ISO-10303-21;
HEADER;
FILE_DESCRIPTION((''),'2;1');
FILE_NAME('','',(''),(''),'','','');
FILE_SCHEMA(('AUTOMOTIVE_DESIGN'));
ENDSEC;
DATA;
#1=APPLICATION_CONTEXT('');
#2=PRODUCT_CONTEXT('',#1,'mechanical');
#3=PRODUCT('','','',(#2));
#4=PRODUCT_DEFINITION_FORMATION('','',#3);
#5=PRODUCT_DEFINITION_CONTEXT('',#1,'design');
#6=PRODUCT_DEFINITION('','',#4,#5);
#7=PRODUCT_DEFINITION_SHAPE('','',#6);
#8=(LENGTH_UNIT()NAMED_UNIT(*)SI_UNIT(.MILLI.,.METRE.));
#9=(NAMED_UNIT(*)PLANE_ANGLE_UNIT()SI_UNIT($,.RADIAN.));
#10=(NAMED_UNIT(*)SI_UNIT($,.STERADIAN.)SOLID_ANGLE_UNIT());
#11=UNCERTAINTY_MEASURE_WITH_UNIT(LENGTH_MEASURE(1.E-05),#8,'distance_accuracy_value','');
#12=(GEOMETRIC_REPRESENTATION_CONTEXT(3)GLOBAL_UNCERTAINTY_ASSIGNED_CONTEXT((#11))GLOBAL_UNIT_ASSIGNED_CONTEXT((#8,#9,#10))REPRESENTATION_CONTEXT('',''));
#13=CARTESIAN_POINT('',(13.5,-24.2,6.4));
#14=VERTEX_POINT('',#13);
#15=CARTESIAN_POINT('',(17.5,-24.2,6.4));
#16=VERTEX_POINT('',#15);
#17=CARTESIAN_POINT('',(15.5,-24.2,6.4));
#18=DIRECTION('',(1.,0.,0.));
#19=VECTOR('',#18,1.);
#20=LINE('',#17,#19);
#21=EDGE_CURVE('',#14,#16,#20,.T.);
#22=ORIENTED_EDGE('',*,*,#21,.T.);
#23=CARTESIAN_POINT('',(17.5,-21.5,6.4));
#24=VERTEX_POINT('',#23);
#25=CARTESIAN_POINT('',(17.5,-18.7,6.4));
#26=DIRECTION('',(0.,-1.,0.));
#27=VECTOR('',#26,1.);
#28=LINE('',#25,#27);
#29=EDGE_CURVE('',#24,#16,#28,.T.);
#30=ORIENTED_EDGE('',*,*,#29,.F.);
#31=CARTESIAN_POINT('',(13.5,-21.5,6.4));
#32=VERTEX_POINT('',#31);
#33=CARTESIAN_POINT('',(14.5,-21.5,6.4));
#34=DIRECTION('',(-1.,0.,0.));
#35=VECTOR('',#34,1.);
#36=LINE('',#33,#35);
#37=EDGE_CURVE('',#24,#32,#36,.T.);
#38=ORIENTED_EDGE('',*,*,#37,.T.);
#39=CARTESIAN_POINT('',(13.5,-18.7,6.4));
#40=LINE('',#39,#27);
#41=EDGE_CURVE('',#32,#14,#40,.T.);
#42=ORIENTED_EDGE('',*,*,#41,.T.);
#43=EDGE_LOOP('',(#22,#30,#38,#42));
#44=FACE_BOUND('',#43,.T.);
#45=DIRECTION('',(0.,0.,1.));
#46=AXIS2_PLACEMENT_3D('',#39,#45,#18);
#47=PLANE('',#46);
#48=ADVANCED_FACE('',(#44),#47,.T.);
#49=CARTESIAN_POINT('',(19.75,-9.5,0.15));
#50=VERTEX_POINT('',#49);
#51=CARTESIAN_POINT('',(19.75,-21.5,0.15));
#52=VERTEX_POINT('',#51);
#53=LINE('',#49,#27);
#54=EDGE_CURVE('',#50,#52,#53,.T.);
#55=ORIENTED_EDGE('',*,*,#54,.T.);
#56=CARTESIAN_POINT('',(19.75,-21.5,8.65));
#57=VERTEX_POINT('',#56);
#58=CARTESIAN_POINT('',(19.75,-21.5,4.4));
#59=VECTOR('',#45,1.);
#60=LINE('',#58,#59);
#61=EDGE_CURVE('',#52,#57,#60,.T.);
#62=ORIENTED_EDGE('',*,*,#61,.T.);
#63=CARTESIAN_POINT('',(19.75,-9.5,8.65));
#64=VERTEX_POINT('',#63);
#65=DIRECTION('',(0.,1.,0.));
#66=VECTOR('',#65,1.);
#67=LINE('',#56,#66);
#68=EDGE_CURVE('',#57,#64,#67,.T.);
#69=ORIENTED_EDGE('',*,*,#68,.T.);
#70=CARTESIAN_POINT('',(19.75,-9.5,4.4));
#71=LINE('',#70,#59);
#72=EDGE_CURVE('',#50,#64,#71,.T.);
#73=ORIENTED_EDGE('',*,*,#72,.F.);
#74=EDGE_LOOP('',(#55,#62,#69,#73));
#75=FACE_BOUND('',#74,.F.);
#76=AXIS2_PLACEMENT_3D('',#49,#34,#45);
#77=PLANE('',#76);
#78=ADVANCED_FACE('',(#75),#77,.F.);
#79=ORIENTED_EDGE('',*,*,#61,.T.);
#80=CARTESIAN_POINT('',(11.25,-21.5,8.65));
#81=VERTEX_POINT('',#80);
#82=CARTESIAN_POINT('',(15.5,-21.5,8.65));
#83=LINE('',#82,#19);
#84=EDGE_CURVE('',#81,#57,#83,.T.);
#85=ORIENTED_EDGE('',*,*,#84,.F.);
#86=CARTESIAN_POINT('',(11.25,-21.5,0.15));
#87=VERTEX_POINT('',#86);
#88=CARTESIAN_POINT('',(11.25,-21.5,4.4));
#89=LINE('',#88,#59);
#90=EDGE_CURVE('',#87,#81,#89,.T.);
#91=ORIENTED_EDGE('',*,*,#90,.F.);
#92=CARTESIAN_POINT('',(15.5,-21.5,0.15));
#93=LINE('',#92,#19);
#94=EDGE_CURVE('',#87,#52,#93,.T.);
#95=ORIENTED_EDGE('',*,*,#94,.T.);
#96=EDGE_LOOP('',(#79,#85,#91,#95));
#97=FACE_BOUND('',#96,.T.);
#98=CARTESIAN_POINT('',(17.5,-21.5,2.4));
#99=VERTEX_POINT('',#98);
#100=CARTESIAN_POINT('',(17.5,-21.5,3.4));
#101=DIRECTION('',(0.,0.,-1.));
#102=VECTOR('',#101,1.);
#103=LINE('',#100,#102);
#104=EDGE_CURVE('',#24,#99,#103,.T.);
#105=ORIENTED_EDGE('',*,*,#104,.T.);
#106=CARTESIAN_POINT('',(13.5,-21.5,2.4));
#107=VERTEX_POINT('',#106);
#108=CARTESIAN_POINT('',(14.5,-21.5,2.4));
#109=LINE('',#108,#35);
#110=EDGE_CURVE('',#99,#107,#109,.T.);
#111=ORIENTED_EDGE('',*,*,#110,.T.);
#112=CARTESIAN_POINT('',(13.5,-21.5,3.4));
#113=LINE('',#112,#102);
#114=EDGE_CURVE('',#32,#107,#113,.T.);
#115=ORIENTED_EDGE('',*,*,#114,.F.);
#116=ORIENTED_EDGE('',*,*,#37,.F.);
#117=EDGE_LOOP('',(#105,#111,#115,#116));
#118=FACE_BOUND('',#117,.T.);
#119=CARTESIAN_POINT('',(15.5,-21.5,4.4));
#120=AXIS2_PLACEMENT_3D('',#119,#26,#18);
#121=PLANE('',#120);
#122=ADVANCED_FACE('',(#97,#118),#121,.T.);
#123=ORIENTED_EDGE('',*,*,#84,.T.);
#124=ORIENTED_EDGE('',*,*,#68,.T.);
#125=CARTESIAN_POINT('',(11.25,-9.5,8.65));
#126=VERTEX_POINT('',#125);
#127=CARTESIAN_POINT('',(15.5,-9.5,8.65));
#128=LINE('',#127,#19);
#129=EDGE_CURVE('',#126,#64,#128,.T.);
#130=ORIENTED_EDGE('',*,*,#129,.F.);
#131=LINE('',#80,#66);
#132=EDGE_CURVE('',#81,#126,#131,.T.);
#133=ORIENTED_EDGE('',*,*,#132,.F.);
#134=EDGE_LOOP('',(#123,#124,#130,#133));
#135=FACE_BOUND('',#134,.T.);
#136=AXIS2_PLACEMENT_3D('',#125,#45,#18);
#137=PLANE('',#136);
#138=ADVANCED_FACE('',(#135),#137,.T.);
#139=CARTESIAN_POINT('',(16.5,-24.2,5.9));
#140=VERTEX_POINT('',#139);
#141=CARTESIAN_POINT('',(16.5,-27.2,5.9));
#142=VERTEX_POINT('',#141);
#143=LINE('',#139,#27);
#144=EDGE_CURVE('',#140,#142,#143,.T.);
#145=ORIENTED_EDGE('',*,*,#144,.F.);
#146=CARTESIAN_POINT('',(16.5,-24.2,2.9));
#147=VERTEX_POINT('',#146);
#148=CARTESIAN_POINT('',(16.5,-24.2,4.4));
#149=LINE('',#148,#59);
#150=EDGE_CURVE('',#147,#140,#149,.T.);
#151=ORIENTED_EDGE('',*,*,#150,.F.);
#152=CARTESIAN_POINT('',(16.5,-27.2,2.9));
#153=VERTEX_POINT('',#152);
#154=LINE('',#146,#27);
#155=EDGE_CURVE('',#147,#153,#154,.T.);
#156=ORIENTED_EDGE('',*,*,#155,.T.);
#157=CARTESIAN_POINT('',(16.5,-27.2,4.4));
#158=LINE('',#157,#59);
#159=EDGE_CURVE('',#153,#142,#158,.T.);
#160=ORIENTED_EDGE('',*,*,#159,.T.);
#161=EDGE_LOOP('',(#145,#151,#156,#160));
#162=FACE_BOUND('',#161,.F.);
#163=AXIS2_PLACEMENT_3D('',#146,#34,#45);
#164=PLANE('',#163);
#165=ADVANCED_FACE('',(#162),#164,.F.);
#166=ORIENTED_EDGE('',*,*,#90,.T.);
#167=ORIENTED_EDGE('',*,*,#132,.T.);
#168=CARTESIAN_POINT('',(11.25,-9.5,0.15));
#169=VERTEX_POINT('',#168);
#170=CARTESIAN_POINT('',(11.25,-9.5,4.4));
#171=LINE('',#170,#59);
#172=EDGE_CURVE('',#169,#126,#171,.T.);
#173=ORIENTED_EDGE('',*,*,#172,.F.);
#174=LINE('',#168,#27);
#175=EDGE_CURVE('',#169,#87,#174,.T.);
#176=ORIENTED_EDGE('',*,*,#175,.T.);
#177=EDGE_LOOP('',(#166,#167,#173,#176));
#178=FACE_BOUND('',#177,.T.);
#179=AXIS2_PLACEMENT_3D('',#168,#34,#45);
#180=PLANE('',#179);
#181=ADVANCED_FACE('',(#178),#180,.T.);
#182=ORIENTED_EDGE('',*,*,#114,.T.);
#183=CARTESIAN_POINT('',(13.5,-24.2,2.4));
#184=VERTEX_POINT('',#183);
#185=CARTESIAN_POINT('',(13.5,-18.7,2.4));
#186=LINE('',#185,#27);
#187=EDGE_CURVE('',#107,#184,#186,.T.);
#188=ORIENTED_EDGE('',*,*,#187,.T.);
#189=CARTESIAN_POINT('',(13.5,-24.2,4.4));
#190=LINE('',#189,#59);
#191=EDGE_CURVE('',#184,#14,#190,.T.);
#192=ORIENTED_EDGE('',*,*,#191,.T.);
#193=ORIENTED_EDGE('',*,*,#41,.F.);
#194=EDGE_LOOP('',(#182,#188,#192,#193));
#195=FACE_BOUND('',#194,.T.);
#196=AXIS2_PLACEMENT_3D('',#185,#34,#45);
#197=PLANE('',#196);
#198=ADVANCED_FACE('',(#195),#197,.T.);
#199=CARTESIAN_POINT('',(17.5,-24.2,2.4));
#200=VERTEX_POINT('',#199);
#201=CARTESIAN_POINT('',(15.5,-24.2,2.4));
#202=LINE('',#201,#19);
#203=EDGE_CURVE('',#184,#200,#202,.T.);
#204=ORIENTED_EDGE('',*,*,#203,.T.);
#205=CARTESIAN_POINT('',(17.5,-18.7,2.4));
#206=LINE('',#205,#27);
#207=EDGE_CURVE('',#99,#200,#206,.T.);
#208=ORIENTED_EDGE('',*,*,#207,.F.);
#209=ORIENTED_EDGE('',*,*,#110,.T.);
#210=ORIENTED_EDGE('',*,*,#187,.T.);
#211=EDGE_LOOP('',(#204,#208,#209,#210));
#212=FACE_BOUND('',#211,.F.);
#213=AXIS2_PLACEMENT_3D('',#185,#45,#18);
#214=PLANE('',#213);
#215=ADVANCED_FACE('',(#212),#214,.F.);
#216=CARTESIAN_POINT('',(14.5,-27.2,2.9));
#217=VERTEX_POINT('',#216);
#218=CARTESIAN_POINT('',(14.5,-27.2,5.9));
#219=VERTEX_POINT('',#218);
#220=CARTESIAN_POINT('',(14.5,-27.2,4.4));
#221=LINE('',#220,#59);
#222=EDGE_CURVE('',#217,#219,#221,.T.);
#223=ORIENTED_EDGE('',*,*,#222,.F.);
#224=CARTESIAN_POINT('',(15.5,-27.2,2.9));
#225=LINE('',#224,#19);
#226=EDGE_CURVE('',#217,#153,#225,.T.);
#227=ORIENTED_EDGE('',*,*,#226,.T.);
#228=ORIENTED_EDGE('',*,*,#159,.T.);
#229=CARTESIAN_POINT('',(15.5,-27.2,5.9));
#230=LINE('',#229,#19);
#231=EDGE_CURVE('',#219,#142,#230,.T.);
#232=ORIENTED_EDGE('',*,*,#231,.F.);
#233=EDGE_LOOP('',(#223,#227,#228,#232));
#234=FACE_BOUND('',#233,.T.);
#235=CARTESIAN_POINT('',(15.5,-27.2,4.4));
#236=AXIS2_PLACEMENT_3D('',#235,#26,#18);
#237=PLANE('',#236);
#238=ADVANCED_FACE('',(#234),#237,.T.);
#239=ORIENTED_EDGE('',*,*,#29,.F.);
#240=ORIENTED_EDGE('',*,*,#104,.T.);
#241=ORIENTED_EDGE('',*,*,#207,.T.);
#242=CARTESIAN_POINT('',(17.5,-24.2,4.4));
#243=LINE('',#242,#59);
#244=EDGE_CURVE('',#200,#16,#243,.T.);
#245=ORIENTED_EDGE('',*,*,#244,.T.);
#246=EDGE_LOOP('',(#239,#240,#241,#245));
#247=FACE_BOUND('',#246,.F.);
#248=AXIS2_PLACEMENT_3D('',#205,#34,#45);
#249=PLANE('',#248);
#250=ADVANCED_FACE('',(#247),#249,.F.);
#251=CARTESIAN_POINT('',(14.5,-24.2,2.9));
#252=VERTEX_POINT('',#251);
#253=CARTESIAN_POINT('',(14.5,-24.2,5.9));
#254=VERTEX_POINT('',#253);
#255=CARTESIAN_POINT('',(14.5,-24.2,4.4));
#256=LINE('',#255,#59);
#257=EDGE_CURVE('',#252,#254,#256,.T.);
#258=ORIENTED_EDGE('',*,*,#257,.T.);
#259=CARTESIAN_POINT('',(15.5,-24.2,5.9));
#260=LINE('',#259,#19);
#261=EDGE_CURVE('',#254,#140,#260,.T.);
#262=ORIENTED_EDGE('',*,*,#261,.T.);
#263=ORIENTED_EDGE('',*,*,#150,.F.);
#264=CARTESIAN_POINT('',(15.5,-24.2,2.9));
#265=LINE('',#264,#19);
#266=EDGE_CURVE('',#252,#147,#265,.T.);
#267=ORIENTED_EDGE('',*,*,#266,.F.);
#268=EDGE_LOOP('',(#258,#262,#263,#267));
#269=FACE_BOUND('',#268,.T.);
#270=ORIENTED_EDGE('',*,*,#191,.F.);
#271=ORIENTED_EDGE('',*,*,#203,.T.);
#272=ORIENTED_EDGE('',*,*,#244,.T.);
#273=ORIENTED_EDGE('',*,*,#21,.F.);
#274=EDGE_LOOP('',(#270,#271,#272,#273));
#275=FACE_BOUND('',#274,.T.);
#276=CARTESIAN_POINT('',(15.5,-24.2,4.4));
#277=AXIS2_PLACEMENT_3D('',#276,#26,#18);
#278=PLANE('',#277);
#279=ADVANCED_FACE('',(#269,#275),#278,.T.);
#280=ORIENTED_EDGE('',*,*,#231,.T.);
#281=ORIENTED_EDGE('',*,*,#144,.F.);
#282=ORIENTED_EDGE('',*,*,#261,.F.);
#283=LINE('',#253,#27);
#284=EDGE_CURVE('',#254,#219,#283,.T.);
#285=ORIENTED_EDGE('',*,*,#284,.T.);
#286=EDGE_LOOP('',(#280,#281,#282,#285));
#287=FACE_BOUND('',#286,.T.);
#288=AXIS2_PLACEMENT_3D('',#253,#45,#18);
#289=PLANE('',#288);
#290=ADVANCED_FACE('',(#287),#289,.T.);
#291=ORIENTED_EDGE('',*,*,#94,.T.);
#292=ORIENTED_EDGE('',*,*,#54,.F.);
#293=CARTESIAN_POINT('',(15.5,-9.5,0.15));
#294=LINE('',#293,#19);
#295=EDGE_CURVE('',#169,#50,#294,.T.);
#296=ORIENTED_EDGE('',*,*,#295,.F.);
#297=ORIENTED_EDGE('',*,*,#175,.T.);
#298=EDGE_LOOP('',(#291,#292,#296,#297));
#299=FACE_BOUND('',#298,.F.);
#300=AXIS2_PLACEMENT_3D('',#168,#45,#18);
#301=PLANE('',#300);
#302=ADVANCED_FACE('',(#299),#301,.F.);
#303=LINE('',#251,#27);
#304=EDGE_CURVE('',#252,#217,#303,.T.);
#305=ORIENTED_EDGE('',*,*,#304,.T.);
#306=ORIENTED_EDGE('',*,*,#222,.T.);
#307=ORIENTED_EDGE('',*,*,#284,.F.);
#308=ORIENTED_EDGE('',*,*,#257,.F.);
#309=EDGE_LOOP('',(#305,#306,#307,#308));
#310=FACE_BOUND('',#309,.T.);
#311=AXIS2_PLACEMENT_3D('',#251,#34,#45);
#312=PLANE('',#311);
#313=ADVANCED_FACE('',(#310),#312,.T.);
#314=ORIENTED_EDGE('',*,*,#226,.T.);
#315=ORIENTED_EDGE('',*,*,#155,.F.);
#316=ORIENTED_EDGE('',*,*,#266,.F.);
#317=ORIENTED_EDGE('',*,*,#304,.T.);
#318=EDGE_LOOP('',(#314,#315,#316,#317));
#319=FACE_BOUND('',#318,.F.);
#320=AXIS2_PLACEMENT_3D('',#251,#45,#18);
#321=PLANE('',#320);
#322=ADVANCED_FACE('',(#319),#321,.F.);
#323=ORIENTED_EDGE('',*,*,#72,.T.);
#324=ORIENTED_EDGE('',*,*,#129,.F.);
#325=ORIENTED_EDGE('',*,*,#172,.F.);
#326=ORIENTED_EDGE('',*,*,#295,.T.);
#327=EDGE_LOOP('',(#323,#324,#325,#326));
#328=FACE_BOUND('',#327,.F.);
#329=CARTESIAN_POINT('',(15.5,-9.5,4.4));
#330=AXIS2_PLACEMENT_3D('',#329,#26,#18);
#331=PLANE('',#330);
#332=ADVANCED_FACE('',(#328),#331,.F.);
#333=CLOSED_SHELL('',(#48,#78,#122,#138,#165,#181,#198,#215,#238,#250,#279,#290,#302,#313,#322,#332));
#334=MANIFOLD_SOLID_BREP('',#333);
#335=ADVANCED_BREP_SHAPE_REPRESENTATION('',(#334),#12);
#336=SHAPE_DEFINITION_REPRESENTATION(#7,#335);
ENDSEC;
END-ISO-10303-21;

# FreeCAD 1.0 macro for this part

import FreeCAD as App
import Part
import Sketcher

V = App.Vector


def add_polygon(sketch, points):
    """Adds a closed chain of lines whose ends are joined by coincident constraints."""
    first, n = sketch.GeometryCount, len(points)
    for a, b in zip(points, points[1:] + points[:1]):
        sketch.addGeometry(Part.LineSegment(App.Vector(*a, 0), App.Vector(*b, 0)), False)
    for i in range(n):
        sketch.addConstraint(Sketcher.Constraint("Coincident", first + i, 2, first + (i + 1) % n, 1))

doc = App.newDocument("Part")
body = doc.addObject("PartDesign::Body", "Body")

# Sketch on XY plane
sketch1 = body.newObject("Sketcher::SketchObject", "Sketch")
sketch1.AttachmentSupport = (doc.getObject("XY_Plane"), [""])
sketch1.MapMode = "FlatFace"
sketch1.AttachmentOffset = App.Placement(V(0, 0, 5.7), App.Rotation())
add_polygon(sketch1, [(-2, 2), (-2, -2), (2, -2), (2, 2)])  # lines 0-3
sketch1.addConstraint([
    Sketcher.Constraint("Vertical", 0),
    Sketcher.Constraint("Horizontal", 1),
    Sketcher.Constraint("Vertical", 2),
    Sketcher.Constraint("Horizontal", 3),
    Sketcher.Constraint("Symmetric", 0, 2, 2, 2, -1, 1),
    Sketcher.Constraint("Equal", 3, 0),
    Sketcher.Constraint("DistanceX", 1, 1, 1, 2, 4.0),
])
pad1 = body.newObject("PartDesign::Pad", "Pad")
pad1.Profile = sketch1
pad1.Length = 5.5
body2 = doc.addObject("PartDesign::Body", "Body001")

# Sketch on XY plane
sketch2 = body2.newObject("Sketcher::SketchObject", "Sketch001")
sketch2.AttachmentSupport = (doc.getObject("XY_Plane001"), [""])
sketch2.MapMode = "FlatFace"
sketch2.AttachmentOffset = App.Placement(V(0, 0, -3.5), App.Rotation())
add_polygon(sketch2, [(-4.25, 4.25), (-4.25, -4.25), (4.25, -4.25), (4.25, 4.25)])  # lines 0-3
sketch2.addConstraint([
    Sketcher.Constraint("Vertical", 0),
    Sketcher.Constraint("Horizontal", 1),
    Sketcher.Constraint("Vertical", 2),
    Sketcher.Constraint("Horizontal", 3),
    Sketcher.Constraint("Symmetric", 0, 2, 2, 2, -1, 1),
    Sketcher.Constraint("Equal", 3, 0),
    Sketcher.Constraint("DistanceX", 1, 1, 1, 2, 8.5),
])
pad2 = body2.newObject("PartDesign::Pad", "Pad001")
pad2.Profile = sketch2
pad2.Length = 3.5
body3 = doc.addObject("PartDesign::Body", "Body002")

# Sketch on XY plane
sketch3 = body3.newObject("Sketcher::SketchObject", "Sketch002")
sketch3.AttachmentSupport = (doc.getObject("XY_Plane002"), [""])
sketch3.MapMode = "FlatFace"
sketch3.AttachmentOffset = App.Placement(V(0, 0, 11.2), App.Rotation())
add_polygon(sketch3, [(-1, 1.5), (-1, -1.5), (1, -1.5), (1, 1.5)])  # lines 0-3
sketch3.addConstraint([
    Sketcher.Constraint("Vertical", 0),
    Sketcher.Constraint("Horizontal", 1),
    Sketcher.Constraint("Vertical", 2),
    Sketcher.Constraint("Horizontal", 3),
    Sketcher.Constraint("Symmetric", 0, 2, 2, 2, -1, 1),
    Sketcher.Constraint("DistanceX", 1, 1, 1, 2, 2.0),
    Sketcher.Constraint("DistanceY", 0, 2, 0, 1, 3.0),
])
pad3 = body3.newObject("PartDesign::Pad", "Pad002")
pad3.Profile = sketch3
pad3.Length = 3
body4 = doc.addObject("PartDesign::Body", "Body003")

# Sketch on XY plane
sketch4 = body4.newObject("Sketcher::SketchObject", "Sketch003")
sketch4.AttachmentSupport = (doc.getObject("XY_Plane003"), [""])
sketch4.MapMode = "FlatFace"
add_polygon(sketch4, [(-4.25, 4.25), (-4.25, -4.25), (4.25, -4.25), (4.25, 4.25)])  # lines 0-3
sketch4.addConstraint([
    Sketcher.Constraint("Vertical", 0),
    Sketcher.Constraint("Horizontal", 1),
    Sketcher.Constraint("Vertical", 2),
    Sketcher.Constraint("Horizontal", 3),
    Sketcher.Constraint("Symmetric", 0, 2, 2, 2, -1, 1),
    Sketcher.Constraint("Equal", 3, 0),
    Sketcher.Constraint("DistanceX", 1, 1, 1, 2, 8.5),
])
pad4 = body4.newObject("PartDesign::Pad", "Pad003")
pad4.Profile = sketch4
pad4.Length = 8.5
doc.recompute()

boolean = body4.newObject("PartDesign::Boolean", "Boolean")
boolean.Type = "Fuse"
boolean.addObjects([body])
doc.recompute()

boolean2 = body4.newObject("PartDesign::Boolean", "Boolean001")
boolean2.Type = "Fuse"
boolean2.addObjects([body2])
doc.recompute()

boolean3 = body4.newObject("PartDesign::Boolean", "Boolean002")
boolean3.Type = "Fuse"
boolean3.addObjects([body3])
body5 = doc.addObject("PartDesign::Body", "Body004")
doc.recompute()

body4.Placement = App.Placement(V(15.5, -13, 4.4), App.Rotation(V(1, 0, 0), 90))
boolean4 = body5.newObject("PartDesign::Boolean", "Boolean003")
boolean4.Type = "Fuse"
boolean4.addObjects([body4])

doc.recompute()
